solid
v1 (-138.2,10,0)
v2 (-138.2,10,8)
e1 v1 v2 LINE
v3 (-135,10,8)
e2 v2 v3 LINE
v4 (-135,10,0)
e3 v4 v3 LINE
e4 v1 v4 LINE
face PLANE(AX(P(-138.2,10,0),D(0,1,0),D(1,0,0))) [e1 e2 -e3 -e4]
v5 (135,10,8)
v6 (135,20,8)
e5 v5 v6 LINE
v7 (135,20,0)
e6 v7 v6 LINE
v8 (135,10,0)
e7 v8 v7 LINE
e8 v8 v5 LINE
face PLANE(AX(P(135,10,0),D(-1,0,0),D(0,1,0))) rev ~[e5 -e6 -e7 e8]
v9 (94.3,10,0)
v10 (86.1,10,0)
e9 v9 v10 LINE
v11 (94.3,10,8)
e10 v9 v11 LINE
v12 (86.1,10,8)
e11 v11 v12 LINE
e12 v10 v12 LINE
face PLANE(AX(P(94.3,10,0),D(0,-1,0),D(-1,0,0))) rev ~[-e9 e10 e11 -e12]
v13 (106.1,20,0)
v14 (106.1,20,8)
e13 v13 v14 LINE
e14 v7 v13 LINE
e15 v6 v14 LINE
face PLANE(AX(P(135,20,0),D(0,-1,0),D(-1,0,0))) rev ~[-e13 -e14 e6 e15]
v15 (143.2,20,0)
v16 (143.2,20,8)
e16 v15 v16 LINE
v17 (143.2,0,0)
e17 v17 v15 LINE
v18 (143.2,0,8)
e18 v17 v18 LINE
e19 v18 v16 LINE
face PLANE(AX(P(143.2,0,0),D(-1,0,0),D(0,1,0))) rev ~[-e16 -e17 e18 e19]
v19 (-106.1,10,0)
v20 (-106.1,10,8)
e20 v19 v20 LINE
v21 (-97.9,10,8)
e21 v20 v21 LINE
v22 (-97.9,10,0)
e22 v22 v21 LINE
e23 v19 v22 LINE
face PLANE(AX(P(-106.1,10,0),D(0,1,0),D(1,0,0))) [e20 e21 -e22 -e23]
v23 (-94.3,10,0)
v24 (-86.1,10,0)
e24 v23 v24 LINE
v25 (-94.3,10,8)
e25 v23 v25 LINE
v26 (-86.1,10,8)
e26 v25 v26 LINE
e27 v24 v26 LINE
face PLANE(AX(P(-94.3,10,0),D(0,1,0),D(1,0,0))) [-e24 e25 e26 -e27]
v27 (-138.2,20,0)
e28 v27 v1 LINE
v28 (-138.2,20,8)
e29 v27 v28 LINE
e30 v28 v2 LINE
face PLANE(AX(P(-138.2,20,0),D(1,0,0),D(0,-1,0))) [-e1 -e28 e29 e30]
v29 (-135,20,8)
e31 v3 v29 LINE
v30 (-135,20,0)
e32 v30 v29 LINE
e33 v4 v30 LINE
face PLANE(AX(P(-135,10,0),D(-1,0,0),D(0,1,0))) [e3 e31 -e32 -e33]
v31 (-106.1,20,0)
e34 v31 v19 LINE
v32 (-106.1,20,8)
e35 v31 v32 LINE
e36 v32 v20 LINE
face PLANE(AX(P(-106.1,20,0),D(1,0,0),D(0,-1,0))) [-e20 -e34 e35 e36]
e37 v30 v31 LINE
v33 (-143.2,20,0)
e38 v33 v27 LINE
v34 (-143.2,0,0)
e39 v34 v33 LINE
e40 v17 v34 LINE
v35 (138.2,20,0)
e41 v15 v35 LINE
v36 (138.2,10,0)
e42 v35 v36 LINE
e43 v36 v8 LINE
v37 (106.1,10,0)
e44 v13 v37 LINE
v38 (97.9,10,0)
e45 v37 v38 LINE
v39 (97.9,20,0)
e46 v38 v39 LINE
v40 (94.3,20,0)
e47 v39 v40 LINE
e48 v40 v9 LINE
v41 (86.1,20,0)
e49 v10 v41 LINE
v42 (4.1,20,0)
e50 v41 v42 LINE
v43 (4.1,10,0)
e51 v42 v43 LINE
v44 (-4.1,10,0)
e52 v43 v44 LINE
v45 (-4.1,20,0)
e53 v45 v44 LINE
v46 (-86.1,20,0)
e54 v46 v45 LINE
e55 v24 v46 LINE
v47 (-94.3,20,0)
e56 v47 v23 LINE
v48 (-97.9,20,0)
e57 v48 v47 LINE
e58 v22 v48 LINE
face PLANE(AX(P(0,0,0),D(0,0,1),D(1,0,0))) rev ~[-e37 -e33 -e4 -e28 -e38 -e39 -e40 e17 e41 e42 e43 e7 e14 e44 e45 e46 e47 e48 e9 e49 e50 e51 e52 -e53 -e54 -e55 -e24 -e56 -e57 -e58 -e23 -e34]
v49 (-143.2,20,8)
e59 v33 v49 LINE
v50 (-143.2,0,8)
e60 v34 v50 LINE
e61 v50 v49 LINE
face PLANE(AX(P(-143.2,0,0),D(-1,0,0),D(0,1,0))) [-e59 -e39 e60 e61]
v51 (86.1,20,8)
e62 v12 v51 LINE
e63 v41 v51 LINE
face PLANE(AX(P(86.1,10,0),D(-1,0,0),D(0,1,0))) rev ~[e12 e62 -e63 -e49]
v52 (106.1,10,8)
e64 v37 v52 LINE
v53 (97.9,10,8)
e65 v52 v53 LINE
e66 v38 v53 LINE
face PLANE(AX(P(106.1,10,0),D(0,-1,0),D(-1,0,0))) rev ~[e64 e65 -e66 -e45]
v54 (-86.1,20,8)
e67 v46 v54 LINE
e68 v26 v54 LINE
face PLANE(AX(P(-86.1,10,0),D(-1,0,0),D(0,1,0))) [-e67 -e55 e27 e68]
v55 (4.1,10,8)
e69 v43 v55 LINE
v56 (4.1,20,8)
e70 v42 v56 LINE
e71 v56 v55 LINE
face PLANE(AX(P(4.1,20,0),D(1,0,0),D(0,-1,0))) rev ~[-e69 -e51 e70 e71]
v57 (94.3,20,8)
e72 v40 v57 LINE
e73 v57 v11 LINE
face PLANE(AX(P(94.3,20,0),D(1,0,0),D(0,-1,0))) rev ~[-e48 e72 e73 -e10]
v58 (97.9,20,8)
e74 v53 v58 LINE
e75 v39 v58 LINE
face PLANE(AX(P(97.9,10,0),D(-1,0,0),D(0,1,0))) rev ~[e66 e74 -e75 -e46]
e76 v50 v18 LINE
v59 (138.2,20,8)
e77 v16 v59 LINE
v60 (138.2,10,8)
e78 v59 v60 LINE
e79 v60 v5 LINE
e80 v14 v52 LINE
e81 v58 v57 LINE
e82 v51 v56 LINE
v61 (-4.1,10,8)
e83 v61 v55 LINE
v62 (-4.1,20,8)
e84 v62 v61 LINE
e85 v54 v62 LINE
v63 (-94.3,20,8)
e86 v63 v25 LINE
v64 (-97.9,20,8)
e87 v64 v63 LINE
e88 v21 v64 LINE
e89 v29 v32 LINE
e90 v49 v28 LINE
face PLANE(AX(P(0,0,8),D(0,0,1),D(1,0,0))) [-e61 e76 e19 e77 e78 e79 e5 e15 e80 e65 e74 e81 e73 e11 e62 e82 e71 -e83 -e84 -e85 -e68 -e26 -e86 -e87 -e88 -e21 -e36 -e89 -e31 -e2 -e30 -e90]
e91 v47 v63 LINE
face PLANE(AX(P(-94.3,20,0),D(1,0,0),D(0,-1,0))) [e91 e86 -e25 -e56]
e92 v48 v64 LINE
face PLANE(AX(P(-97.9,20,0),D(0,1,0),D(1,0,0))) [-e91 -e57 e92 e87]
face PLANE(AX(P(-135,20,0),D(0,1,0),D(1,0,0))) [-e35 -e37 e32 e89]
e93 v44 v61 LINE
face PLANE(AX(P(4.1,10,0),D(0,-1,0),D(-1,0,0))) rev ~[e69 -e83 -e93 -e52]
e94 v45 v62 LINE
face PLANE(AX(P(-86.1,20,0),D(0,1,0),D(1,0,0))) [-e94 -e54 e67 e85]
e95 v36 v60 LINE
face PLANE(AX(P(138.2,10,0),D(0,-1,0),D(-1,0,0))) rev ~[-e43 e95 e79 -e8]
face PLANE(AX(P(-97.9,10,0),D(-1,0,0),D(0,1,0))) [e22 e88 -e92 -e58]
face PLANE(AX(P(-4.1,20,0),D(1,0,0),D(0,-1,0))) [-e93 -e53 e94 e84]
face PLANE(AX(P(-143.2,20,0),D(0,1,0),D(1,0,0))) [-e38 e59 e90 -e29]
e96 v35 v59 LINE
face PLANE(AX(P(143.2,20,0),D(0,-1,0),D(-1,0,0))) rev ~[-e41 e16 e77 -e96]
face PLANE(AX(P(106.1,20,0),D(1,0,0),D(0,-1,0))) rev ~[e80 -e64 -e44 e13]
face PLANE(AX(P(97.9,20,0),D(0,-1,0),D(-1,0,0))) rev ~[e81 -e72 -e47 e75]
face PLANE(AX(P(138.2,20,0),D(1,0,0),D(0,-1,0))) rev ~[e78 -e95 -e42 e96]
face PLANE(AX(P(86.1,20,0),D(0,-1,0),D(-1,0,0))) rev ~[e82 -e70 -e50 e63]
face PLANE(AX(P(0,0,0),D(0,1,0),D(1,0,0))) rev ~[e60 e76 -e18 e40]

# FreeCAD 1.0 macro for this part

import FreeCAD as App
import Part
import Sketcher
from FreeCAD import Vector


def add_polygon(sketch, points):
    """Adds a closed chain of lines whose ends are joined by coincident constraints."""
    first, n = sketch.GeometryCount, len(points)
    for a, b in zip(points, points[1:] + points[:1]):
        sketch.addGeometry(Part.LineSegment(App.Vector(*a, 0), App.Vector(*b, 0)), False)
    for i in range(n):
        sketch.addConstraint(Sketcher.Constraint("Coincident", first + i, 2, first + (i + 1) % n, 1))

doc = App.newDocument("Part")
params = doc.addObject("Spreadsheet::Sheet", "Params")
for row, (alias, value) in enumerate([
    ("sketch1_width", "82 mm"),
    ("sketch1_width2", "5 mm"),
    ("sketch1_height", "10 mm"),
    ("sketch1_height2", "20 mm"),
    ("sketch1_width3", "8.2 mm"),
    ("pad1_length", "8 mm"),
], start=1):
    params.set(f"A{row}", alias)
    params.set(f"B{row}", "=" + value)
    params.setAlias(f"B{row}", alias)

body = doc.addObject("PartDesign::Body", "Body")

sketch1 = body.newObject("Sketcher::SketchObject", "Sketch")
sketch1.AttachmentSupport = (doc.getObject("XY_Plane"), [""])
sketch1.MapMode = "FlatFace"
add_polygon(sketch1, [(4.1, 10), (-4.1, 10), (-4.1, 20), (-86.1, 20), (-86.1, 10), (-94.3, 10), (-94.3, 20), (-97.9, 20), (-97.9, 10), (-106.1, 10), (-106.1, 20), (-135, 20), (-135, 10), (-138.2, 10), (-138.2, 20), (-143.2, 20), (-143.2, 0), (143.2, 0), (143.2, 20), (138.2, 20), (138.2, 10), (135, 10), (135, 20), (106.1, 20), (106.1, 10), (97.9, 10), (97.9, 20), (94.3, 20), (94.3, 10), (86.1, 10), (86.1, 20), (4.1, 20)])
sketch1.addConstraint([
    Sketcher.Constraint("Horizontal", 0),
    Sketcher.Constraint("Vertical", 1),
    Sketcher.Constraint("Horizontal", 2),
    Sketcher.Constraint("Vertical", 3),
    Sketcher.Constraint("Horizontal", 4),
    Sketcher.Constraint("Vertical", 5),
    Sketcher.Constraint("Horizontal", 6),
    Sketcher.Constraint("Vertical", 7),
    Sketcher.Constraint("Horizontal", 8),
    Sketcher.Constraint("Vertical", 9),
    Sketcher.Constraint("Horizontal", 10),
    Sketcher.Constraint("Vertical", 11),
    Sketcher.Constraint("Horizontal", 12),
    Sketcher.Constraint("Vertical", 13),
    Sketcher.Constraint("Horizontal", 14),
    Sketcher.Constraint("Vertical", 15),
    Sketcher.Constraint("Horizontal", 16),
    Sketcher.Constraint("Vertical", 17),
    Sketcher.Constraint("Horizontal", 18),
    Sketcher.Constraint("Vertical", 19),
    Sketcher.Constraint("Horizontal", 20),
    Sketcher.Constraint("Vertical", 21),
    Sketcher.Constraint("Horizontal", 22),
    Sketcher.Constraint("Vertical", 23),
    Sketcher.Constraint("Horizontal", 24),
    Sketcher.Constraint("Vertical", 25),
    Sketcher.Constraint("Horizontal", 26),
    Sketcher.Constraint("Vertical", 27),
    Sketcher.Constraint("Horizontal", 28),
    Sketcher.Constraint("Vertical", 29),
    Sketcher.Constraint("Horizontal", 30),
    Sketcher.Constraint("Vertical", 31),
    Sketcher.Constraint("Symmetric", 15, 2, 16, 2, -1, 1),
    Sketcher.Constraint("Symmetric", 13, 2, 18, 2, -2),
    Sketcher.Constraint("Symmetric", 11, 2, 20, 2, -2),
    Sketcher.Constraint("Symmetric", 9, 2, 22, 2, -2),
    Sketcher.Constraint("Symmetric", 7, 2, 24, 2, -2),
    Sketcher.Constraint("Symmetric", 5, 2, 26, 2, -2),
    Sketcher.Constraint("Symmetric", 3, 2, 28, 2, -2),
    Sketcher.Constraint("Symmetric", 1, 2, 30, 2, -2),
    Sketcher.Constraint("Horizontal", 0, 2, 3, 2),
    Sketcher.Constraint("Horizontal", 2, 2, 5, 2),
    Sketcher.Constraint("Horizontal", 4, 2, 7, 2),
    Sketcher.Constraint("Horizontal", 6, 2, 9, 2),
    Sketcher.Constraint("Horizontal", 8, 2, 11, 2),
    Sketcher.Constraint("Horizontal", 10, 2, 13, 2),
    Sketcher.Constraint("Equal", 0, 4),
    Sketcher.Constraint("Equal", 4, 8),
    Sketcher.Constraint("DistanceX", 2, 2, 2, 1, 82.0),
    Sketcher.Constraint("DistanceX", 14, 2, 14, 1, 5.0),
    Sketcher.Constraint("DistanceY", 1, 1, 1, 2, 10.0),
    Sketcher.Constraint("DistanceY", 15, 2, 15, 1, 20.0),
    Sketcher.Constraint("DistanceX", 0, 2, 0, 1, 8.2),
    Sketcher.Constraint("DistanceX", 12, 2, 12, 1, 3.2),
    Sketcher.Constraint("DistanceX", 10, 2, -1, 1, 135.0),
    Sketcher.Constraint("DistanceX", 8, 2, 3, 2, 20.0),
])
sketch1.setExpression("Constraints[80]", "Params.sketch1_width")
sketch1.setExpression("Constraints[81]", "Params.sketch1_width2")
sketch1.setExpression("Constraints[82]", "Params.sketch1_height")
sketch1.setExpression("Constraints[83]", "Params.sketch1_height2")
sketch1.setExpression("Constraints[84]", "Params.sketch1_width3")
pad1 = body.newObject("PartDesign::Pad", "Pad")
pad1.Profile = sketch1
pad1.setExpression("Length", "Params.pad1_length")

doc.recompute()
